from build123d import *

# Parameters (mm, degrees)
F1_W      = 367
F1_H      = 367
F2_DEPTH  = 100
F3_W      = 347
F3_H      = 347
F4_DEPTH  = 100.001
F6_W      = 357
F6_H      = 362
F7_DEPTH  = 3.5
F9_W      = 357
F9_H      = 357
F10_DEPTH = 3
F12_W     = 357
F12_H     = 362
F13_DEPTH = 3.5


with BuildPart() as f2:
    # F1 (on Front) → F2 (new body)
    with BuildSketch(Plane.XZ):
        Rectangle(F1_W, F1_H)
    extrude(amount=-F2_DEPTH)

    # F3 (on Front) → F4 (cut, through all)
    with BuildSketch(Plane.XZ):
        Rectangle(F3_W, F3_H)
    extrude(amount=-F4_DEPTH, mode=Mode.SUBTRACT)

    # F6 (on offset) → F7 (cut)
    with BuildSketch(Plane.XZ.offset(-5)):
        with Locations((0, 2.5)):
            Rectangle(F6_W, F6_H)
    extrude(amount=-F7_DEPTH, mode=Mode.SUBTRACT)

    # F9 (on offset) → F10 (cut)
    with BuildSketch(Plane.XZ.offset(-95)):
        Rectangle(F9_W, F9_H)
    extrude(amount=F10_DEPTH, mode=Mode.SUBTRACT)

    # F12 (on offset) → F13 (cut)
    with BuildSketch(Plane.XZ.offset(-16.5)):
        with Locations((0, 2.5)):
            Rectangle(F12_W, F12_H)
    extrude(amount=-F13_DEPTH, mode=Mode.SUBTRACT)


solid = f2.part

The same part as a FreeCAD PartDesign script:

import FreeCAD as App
import Part
import Sketcher
from FreeCAD import Vector
Q = App.Units.Quantity


def add_polygon(sketch, points):
    """Adds a closed chain of lines whose ends are joined by coincident constraints."""
    first, n = sketch.GeometryCount, len(points)
    for a, b in zip(points, points[1:] + points[:1]):
        sketch.addGeometry(Part.LineSegment(App.Vector(*a, 0), App.Vector(*b, 0)), False)
    for i in range(n):
        sketch.addConstraint(Sketcher.Constraint("Coincident", first + i, 2, first + (i + 1) % n, 1))

doc = App.newDocument("Part")
body = doc.addObject("PartDesign::Body", "Body")

# Sketch on XZ plane
sketch1 = body.newObject("Sketcher::SketchObject", "Sketch")
sketch1.AttachmentSupport = (doc.getObject("XZ_Plane"), [""])
sketch1.MapMode = "FlatFace"
add_polygon(sketch1, [(-184, 184), (-184, -184), (184, -184), (184, 184)])  # lines 0-3
sketch1.addConstraint([
    Sketcher.Constraint("Vertical", 0),
    Sketcher.Constraint("Horizontal", 1),
    Sketcher.Constraint("Vertical", 2),
    Sketcher.Constraint("Horizontal", 3),
    Sketcher.Constraint("Symmetric", 0, 2, 2, 2, -1, 1),
    Sketcher.Constraint("Equal", 3, 0),
    Sketcher.Constraint("DistanceX", 1, 1, 1, 2, Q("367 mm")),
])
pad1 = body.newObject("PartDesign::Pad", "Pad")
pad1.Profile = sketch1
pad1.Length = 100
pad1.Reversed = True

# Sketch on XZ plane
sketch2 = body.newObject("Sketcher::SketchObject", "Sketch001")
sketch2.AttachmentSupport = (doc.getObject("XZ_Plane"), [""])
sketch2.MapMode = "FlatFace"
add_polygon(sketch2, [(-174, 174), (-174, -174), (174, -174), (174, 174)])  # lines 0-3
sketch2.addConstraint([
    Sketcher.Constraint("Vertical", 0),
    Sketcher.Constraint("Horizontal", 1),
    Sketcher.Constraint("Vertical", 2),
    Sketcher.Constraint("Horizontal", 3),
    Sketcher.Constraint("Symmetric", 0, 2, 2, 2, -1, 1),
    Sketcher.Constraint("Equal", 3, 0),
    Sketcher.Constraint("DistanceX", 1, 1, 1, 2, Q("347 mm")),
])
pocket1 = body.newObject("PartDesign::Pocket", "Pocket")
pocket1.Profile = sketch2
pocket1.Type = "ThroughAll"

# Sketch on XZ plane
sketch3 = body.newObject("Sketcher::SketchObject", "Sketch002")
sketch3.AttachmentSupport = (doc.getObject("XZ_Plane"), [""])
sketch3.MapMode = "FlatFace"
sketch3.AttachmentOffset = App.Placement(Vector(0, 0, -5), App.Rotation())
add_polygon(sketch3, [(-178, 184), (-178, -178), (178, -178), (178, 184)])  # lines 0-3
sketch3.addConstraint([
    Sketcher.Constraint("Vertical", 0),
    Sketcher.Constraint("Horizontal", 1),
    Sketcher.Constraint("Vertical", 2),
    Sketcher.Constraint("Horizontal", 3),
    Sketcher.Constraint("DistanceX", 1, 1, 1, 2, Q("357 mm")),
    Sketcher.Constraint("DistanceY", 0, 2, 0, 1, Q("362 mm")),
    Sketcher.Constraint("DistanceX", 0, 2, -1, 1, Q("178.5 mm")),
    Sketcher.Constraint("DistanceY", 0, 2, -1, 1, Q("178.5 mm")),
])
pocket2 = body.newObject("PartDesign::Pocket", "Pocket001")
pocket2.Profile = sketch3
pocket2.Length = 3.5

# Sketch on XZ plane
sketch4 = body.newObject("Sketcher::SketchObject", "Sketch003")
sketch4.AttachmentSupport = (doc.getObject("XZ_Plane"), [""])
sketch4.MapMode = "FlatFace"
sketch4.AttachmentOffset = App.Placement(Vector(0, 0, -95), App.Rotation())
add_polygon(sketch4, [(-178, 178), (-178, -178), (178, -178), (178, 178)])  # lines 0-3
sketch4.addConstraint([
    Sketcher.Constraint("Vertical", 0),
    Sketcher.Constraint("Horizontal", 1),
    Sketcher.Constraint("Vertical", 2),
    Sketcher.Constraint("Horizontal", 3),
    Sketcher.Constraint("Symmetric", 0, 2, 2, 2, -1, 1),
    Sketcher.Constraint("Equal", 3, 0),
    Sketcher.Constraint("DistanceX", 1, 1, 1, 2, Q("357 mm")),
])
pocket3 = body.newObject("PartDesign::Pocket", "Pocket002")
pocket3.Profile = sketch4
pocket3.Length = 3
pocket3.Reversed = True

# Sketch on XZ plane
sketch5 = body.newObject("Sketcher::SketchObject", "Sketch004")
sketch5.AttachmentSupport = (doc.getObject("XZ_Plane"), [""])
sketch5.MapMode = "FlatFace"
sketch5.AttachmentOffset = App.Placement(Vector(0, 0, -16.5), App.Rotation())
add_polygon(sketch5, [(-178, 184), (-178, -178), (178, -178), (178, 184)])  # lines 0-3
sketch5.addConstraint([
    Sketcher.Constraint("Vertical", 0),
    Sketcher.Constraint("Horizontal", 1),
    Sketcher.Constraint("Vertical", 2),
    Sketcher.Constraint("Horizontal", 3),
    Sketcher.Constraint("DistanceX", 1, 1, 1, 2, Q("357 mm")),
    Sketcher.Constraint("DistanceY", 0, 2, 0, 1, Q("362 mm")),
    Sketcher.Constraint("DistanceX", 0, 2, -1, 1, Q("178.5 mm")),
    Sketcher.Constraint("DistanceY", 0, 2, -1, 1, Q("178.5 mm")),
])
pocket4 = body.newObject("PartDesign::Pocket", "Pocket003")
pocket4.Profile = sketch5
pocket4.Length = 3.5

doc.recompute()
